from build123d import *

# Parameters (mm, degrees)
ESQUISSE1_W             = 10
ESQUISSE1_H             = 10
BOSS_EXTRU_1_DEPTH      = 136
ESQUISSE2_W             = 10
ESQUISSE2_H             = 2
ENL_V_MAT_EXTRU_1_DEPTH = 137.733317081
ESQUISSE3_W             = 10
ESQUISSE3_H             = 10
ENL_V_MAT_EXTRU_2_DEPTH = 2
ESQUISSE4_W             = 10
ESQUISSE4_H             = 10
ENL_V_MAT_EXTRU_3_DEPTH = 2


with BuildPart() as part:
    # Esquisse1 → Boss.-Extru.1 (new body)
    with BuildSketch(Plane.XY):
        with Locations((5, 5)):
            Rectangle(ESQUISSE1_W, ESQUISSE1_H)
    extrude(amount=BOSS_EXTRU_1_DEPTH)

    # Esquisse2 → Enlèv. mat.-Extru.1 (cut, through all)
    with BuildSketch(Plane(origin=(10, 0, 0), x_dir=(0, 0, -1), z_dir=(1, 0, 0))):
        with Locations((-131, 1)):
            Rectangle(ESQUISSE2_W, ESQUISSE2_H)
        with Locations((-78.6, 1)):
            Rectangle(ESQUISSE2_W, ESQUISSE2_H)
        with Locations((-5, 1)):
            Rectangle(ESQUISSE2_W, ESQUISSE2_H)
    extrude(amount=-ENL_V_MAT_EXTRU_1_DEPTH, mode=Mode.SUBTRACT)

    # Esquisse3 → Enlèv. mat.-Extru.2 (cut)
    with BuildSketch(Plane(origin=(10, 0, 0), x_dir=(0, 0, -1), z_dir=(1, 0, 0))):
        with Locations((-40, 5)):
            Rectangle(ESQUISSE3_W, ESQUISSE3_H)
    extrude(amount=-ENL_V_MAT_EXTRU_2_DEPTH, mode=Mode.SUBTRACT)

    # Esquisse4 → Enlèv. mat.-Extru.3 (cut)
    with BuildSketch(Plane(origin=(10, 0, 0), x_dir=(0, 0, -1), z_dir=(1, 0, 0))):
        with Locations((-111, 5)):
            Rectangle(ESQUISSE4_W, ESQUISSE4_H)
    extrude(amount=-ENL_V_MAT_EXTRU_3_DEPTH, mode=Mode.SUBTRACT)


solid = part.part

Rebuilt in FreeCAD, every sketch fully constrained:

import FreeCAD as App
import Part
import Sketcher
from FreeCAD import Vector

doc = App.newDocument("Part")
body = doc.addObject("PartDesign::Body", "Body")

sketch1 = body.newObject("Sketcher::SketchObject", "Sketch")
sketch1.AttachmentSupport = (doc.getObject("XY_Plane"), [""])
sketch1.MapMode = "FlatFace"
sketch1.addGeometry([
    Part.LineSegment(Vector(0, 10, 0), Vector(0, 0, 0)),
    Part.LineSegment(Vector(0, 0, 0), Vector(10, 0, 0)),
    Part.LineSegment(Vector(10, 0, 0), Vector(10, 10, 0)),
    Part.LineSegment(Vector(10, 10, 0), Vector(0, 10, 0)),
], False)
sketch1.addConstraint([
    Sketcher.Constraint("Coincident", 0, 2, 1, 1),
    Sketcher.Constraint("Coincident", 1, 2, 2, 1),
    Sketcher.Constraint("Coincident", 2, 2, 3, 1),
    Sketcher.Constraint("Coincident", 3, 2, 0, 1),
    Sketcher.Constraint("Vertical", 0),
    Sketcher.Constraint("Horizontal", 1),
    Sketcher.Constraint("Vertical", 2),
    Sketcher.Constraint("Horizontal", 3),
    Sketcher.Constraint("Coincident", 0, 2, -1, 1),
    Sketcher.Constraint("Equal", 3, 0),
    Sketcher.Constraint("DistanceX", 1, 1, 1, 2, 10.0),
])
pad1 = body.newObject("PartDesign::Pad", "Pad")
pad1.Profile = sketch1
pad1.Length = 136

sketch2 = body.newObject("Sketcher::SketchObject", "Sketch001")
sketch2.AttachmentSupport = (doc.getObject("YZ_Plane"), [""])
sketch2.MapMode = "FlatFace"
sketch2.AttachmentOffset = App.Placement(Vector(0, 0, 10), App.Rotation())
sketch2.addGeometry([
    Part.LineSegment(Vector(2, 136, 0), Vector(0, 136, 0)),
    Part.LineSegment(Vector(0, 136, 0), Vector(0, 126, 0)),
    Part.LineSegment(Vector(0, 126, 0), Vector(2, 126, 0)),
    Part.LineSegment(Vector(2, 126, 0), Vector(2, 136, 0)),
    Part.LineSegment(Vector(2, 83.6, 0), Vector(0, 83.6, 0)),
    Part.LineSegment(Vector(0, 83.6, 0), Vector(0, 73.6, 0)),
    Part.LineSegment(Vector(0, 73.6, 0), Vector(2, 73.6, 0)),
    Part.LineSegment(Vector(2, 73.6, 0), Vector(2, 83.6, 0)),
    Part.LineSegment(Vector(2, 10, 0), Vector(0, 10, 0)),
    Part.LineSegment(Vector(0, 10, 0), Vector(0, 0, 0)),
    Part.LineSegment(Vector(0, 0, 0), Vector(2, 0, 0)),
    Part.LineSegment(Vector(2, 0, 0), Vector(2, 10, 0)),
], False)
sketch2.addConstraint([
    Sketcher.Constraint("Coincident", 0, 2, 1, 1),
    Sketcher.Constraint("Coincident", 1, 2, 2, 1),
    Sketcher.Constraint("Coincident", 2, 2, 3, 1),
    Sketcher.Constraint("Coincident", 3, 2, 0, 1),
    Sketcher.Constraint("Coincident", 4, 2, 5, 1),
    Sketcher.Constraint("Coincident", 5, 2, 6, 1),
    Sketcher.Constraint("Coincident", 6, 2, 7, 1),
    Sketcher.Constraint("Coincident", 7, 2, 4, 1),
    Sketcher.Constraint("Coincident", 8, 2, 9, 1),
    Sketcher.Constraint("Coincident", 9, 2, 10, 1),
    Sketcher.Constraint("Coincident", 10, 2, 11, 1),
    Sketcher.Constraint("Coincident", 11, 2, 8, 1),
    Sketcher.Constraint("Horizontal", 0),
    Sketcher.Constraint("Vertical", 1),
    Sketcher.Constraint("Horizontal", 2),
    Sketcher.Constraint("Vertical", 3),
    Sketcher.Constraint("Horizontal", 4),
    Sketcher.Constraint("Vertical", 5),
    Sketcher.Constraint("Horizontal", 6),
    Sketcher.Constraint("Vertical", 7),
    Sketcher.Constraint("Horizontal", 8),
    Sketcher.Constraint("Vertical", 9),
    Sketcher.Constraint("Horizontal", 10),
    Sketcher.Constraint("Vertical", 11),
    Sketcher.Constraint("Coincident", 9, 2, -1, 1),
    Sketcher.Constraint("PointOnObject", 0, 2, -2),
    Sketcher.Constraint("PointOnObject", 4, 2, -2),
    Sketcher.Constraint("Vertical", 3, 2, 6, 2),
    Sketcher.Constraint("Vertical", 7, 2, 10, 2),
    Sketcher.Constraint("Equal", 3, 5),
    Sketcher.Constraint("Equal", 7, 9),
    Sketcher.Constraint("DistanceX", 0, 2, 0, 1, 2.0),
    Sketcher.Constraint("DistanceY", 1, 2, 1, 1, 10.0),
    Sketcher.Constraint("DistanceY", -1, 1, 0, 2, 136.0),
    Sketcher.Constraint("DistanceY", -1, 1, 4, 2, 83.6),
])
pocket1 = body.newObject("PartDesign::Pocket", "Pocket")
pocket1.Profile = sketch2
pocket1.Type = "ThroughAll"

sketch3 = body.newObject("Sketcher::SketchObject", "Sketch002")
sketch3.AttachmentSupport = (doc.getObject("YZ_Plane"), [""])
sketch3.MapMode = "FlatFace"
sketch3.AttachmentOffset = App.Placement(Vector(0, 0, 10), App.Rotation())
sketch3.addGeometry([
    Part.LineSegment(Vector(10, 45, 0), Vector(0, 45, 0)),
    Part.LineSegment(Vector(0, 45, 0), Vector(0, 35, 0)),
    Part.LineSegment(Vector(0, 35, 0), Vector(10, 35, 0)),
    Part.LineSegment(Vector(10, 35, 0), Vector(10, 45, 0)),
], False)
sketch3.addConstraint([
    Sketcher.Constraint("Coincident", 0, 2, 1, 1),
    Sketcher.Constraint("Coincident", 1, 2, 2, 1),
    Sketcher.Constraint("Coincident", 2, 2, 3, 1),
    Sketcher.Constraint("Coincident", 3, 2, 0, 1),
    Sketcher.Constraint("Horizontal", 0),
    Sketcher.Constraint("Vertical", 1),
    Sketcher.Constraint("Horizontal", 2),
    Sketcher.Constraint("Vertical", 3),
    Sketcher.Constraint("PointOnObject", 0, 2, -2),
    Sketcher.Constraint("Equal", 2, 1),
    Sketcher.Constraint("DistanceX", 0, 2, 0, 1, 10.0),
    Sketcher.Constraint("DistanceY", -1, 1, 0, 2, 45.0),
])
pocket2 = body.newObject("PartDesign::Pocket", "Pocket001")
pocket2.Profile = sketch3
pocket2.Length = 2

sketch4 = body.newObject("Sketcher::SketchObject", "Sketch003")
sketch4.AttachmentSupport = (doc.getObject("YZ_Plane"), [""])
sketch4.MapMode = "FlatFace"
sketch4.AttachmentOffset = App.Placement(Vector(0, 0, 10), App.Rotation())
sketch4.addGeometry([
    Part.LineSegment(Vector(10, 116, 0), Vector(0, 116, 0)),
    Part.LineSegment(Vector(0, 116, 0), Vector(0, 106, 0)),
    Part.LineSegment(Vector(0, 106, 0), Vector(10, 106, 0)),
    Part.LineSegment(Vector(10, 106, 0), Vector(10, 116, 0)),
], False)
sketch4.addConstraint([
    Sketcher.Constraint("Coincident", 0, 2, 1, 1),
    Sketcher.Constraint("Coincident", 1, 2, 2, 1),
    Sketcher.Constraint("Coincident", 2, 2, 3, 1),
    Sketcher.Constraint("Coincident", 3, 2, 0, 1),
    Sketcher.Constraint("Horizontal", 0),
    Sketcher.Constraint("Vertical", 1),
    Sketcher.Constraint("Horizontal", 2),
    Sketcher.Constraint("Vertical", 3),
    Sketcher.Constraint("PointOnObject", 0, 2, -2),
    Sketcher.Constraint("Equal", 2, 1),
    Sketcher.Constraint("DistanceX", 0, 2, 0, 1, 10.0),
    Sketcher.Constraint("DistanceY", -1, 1, 0, 2, 116.0),
])
pocket3 = body.newObject("PartDesign::Pocket", "Pocket002")
pocket3.Profile = sketch4
pocket3.Length = 2

doc.recompute()
